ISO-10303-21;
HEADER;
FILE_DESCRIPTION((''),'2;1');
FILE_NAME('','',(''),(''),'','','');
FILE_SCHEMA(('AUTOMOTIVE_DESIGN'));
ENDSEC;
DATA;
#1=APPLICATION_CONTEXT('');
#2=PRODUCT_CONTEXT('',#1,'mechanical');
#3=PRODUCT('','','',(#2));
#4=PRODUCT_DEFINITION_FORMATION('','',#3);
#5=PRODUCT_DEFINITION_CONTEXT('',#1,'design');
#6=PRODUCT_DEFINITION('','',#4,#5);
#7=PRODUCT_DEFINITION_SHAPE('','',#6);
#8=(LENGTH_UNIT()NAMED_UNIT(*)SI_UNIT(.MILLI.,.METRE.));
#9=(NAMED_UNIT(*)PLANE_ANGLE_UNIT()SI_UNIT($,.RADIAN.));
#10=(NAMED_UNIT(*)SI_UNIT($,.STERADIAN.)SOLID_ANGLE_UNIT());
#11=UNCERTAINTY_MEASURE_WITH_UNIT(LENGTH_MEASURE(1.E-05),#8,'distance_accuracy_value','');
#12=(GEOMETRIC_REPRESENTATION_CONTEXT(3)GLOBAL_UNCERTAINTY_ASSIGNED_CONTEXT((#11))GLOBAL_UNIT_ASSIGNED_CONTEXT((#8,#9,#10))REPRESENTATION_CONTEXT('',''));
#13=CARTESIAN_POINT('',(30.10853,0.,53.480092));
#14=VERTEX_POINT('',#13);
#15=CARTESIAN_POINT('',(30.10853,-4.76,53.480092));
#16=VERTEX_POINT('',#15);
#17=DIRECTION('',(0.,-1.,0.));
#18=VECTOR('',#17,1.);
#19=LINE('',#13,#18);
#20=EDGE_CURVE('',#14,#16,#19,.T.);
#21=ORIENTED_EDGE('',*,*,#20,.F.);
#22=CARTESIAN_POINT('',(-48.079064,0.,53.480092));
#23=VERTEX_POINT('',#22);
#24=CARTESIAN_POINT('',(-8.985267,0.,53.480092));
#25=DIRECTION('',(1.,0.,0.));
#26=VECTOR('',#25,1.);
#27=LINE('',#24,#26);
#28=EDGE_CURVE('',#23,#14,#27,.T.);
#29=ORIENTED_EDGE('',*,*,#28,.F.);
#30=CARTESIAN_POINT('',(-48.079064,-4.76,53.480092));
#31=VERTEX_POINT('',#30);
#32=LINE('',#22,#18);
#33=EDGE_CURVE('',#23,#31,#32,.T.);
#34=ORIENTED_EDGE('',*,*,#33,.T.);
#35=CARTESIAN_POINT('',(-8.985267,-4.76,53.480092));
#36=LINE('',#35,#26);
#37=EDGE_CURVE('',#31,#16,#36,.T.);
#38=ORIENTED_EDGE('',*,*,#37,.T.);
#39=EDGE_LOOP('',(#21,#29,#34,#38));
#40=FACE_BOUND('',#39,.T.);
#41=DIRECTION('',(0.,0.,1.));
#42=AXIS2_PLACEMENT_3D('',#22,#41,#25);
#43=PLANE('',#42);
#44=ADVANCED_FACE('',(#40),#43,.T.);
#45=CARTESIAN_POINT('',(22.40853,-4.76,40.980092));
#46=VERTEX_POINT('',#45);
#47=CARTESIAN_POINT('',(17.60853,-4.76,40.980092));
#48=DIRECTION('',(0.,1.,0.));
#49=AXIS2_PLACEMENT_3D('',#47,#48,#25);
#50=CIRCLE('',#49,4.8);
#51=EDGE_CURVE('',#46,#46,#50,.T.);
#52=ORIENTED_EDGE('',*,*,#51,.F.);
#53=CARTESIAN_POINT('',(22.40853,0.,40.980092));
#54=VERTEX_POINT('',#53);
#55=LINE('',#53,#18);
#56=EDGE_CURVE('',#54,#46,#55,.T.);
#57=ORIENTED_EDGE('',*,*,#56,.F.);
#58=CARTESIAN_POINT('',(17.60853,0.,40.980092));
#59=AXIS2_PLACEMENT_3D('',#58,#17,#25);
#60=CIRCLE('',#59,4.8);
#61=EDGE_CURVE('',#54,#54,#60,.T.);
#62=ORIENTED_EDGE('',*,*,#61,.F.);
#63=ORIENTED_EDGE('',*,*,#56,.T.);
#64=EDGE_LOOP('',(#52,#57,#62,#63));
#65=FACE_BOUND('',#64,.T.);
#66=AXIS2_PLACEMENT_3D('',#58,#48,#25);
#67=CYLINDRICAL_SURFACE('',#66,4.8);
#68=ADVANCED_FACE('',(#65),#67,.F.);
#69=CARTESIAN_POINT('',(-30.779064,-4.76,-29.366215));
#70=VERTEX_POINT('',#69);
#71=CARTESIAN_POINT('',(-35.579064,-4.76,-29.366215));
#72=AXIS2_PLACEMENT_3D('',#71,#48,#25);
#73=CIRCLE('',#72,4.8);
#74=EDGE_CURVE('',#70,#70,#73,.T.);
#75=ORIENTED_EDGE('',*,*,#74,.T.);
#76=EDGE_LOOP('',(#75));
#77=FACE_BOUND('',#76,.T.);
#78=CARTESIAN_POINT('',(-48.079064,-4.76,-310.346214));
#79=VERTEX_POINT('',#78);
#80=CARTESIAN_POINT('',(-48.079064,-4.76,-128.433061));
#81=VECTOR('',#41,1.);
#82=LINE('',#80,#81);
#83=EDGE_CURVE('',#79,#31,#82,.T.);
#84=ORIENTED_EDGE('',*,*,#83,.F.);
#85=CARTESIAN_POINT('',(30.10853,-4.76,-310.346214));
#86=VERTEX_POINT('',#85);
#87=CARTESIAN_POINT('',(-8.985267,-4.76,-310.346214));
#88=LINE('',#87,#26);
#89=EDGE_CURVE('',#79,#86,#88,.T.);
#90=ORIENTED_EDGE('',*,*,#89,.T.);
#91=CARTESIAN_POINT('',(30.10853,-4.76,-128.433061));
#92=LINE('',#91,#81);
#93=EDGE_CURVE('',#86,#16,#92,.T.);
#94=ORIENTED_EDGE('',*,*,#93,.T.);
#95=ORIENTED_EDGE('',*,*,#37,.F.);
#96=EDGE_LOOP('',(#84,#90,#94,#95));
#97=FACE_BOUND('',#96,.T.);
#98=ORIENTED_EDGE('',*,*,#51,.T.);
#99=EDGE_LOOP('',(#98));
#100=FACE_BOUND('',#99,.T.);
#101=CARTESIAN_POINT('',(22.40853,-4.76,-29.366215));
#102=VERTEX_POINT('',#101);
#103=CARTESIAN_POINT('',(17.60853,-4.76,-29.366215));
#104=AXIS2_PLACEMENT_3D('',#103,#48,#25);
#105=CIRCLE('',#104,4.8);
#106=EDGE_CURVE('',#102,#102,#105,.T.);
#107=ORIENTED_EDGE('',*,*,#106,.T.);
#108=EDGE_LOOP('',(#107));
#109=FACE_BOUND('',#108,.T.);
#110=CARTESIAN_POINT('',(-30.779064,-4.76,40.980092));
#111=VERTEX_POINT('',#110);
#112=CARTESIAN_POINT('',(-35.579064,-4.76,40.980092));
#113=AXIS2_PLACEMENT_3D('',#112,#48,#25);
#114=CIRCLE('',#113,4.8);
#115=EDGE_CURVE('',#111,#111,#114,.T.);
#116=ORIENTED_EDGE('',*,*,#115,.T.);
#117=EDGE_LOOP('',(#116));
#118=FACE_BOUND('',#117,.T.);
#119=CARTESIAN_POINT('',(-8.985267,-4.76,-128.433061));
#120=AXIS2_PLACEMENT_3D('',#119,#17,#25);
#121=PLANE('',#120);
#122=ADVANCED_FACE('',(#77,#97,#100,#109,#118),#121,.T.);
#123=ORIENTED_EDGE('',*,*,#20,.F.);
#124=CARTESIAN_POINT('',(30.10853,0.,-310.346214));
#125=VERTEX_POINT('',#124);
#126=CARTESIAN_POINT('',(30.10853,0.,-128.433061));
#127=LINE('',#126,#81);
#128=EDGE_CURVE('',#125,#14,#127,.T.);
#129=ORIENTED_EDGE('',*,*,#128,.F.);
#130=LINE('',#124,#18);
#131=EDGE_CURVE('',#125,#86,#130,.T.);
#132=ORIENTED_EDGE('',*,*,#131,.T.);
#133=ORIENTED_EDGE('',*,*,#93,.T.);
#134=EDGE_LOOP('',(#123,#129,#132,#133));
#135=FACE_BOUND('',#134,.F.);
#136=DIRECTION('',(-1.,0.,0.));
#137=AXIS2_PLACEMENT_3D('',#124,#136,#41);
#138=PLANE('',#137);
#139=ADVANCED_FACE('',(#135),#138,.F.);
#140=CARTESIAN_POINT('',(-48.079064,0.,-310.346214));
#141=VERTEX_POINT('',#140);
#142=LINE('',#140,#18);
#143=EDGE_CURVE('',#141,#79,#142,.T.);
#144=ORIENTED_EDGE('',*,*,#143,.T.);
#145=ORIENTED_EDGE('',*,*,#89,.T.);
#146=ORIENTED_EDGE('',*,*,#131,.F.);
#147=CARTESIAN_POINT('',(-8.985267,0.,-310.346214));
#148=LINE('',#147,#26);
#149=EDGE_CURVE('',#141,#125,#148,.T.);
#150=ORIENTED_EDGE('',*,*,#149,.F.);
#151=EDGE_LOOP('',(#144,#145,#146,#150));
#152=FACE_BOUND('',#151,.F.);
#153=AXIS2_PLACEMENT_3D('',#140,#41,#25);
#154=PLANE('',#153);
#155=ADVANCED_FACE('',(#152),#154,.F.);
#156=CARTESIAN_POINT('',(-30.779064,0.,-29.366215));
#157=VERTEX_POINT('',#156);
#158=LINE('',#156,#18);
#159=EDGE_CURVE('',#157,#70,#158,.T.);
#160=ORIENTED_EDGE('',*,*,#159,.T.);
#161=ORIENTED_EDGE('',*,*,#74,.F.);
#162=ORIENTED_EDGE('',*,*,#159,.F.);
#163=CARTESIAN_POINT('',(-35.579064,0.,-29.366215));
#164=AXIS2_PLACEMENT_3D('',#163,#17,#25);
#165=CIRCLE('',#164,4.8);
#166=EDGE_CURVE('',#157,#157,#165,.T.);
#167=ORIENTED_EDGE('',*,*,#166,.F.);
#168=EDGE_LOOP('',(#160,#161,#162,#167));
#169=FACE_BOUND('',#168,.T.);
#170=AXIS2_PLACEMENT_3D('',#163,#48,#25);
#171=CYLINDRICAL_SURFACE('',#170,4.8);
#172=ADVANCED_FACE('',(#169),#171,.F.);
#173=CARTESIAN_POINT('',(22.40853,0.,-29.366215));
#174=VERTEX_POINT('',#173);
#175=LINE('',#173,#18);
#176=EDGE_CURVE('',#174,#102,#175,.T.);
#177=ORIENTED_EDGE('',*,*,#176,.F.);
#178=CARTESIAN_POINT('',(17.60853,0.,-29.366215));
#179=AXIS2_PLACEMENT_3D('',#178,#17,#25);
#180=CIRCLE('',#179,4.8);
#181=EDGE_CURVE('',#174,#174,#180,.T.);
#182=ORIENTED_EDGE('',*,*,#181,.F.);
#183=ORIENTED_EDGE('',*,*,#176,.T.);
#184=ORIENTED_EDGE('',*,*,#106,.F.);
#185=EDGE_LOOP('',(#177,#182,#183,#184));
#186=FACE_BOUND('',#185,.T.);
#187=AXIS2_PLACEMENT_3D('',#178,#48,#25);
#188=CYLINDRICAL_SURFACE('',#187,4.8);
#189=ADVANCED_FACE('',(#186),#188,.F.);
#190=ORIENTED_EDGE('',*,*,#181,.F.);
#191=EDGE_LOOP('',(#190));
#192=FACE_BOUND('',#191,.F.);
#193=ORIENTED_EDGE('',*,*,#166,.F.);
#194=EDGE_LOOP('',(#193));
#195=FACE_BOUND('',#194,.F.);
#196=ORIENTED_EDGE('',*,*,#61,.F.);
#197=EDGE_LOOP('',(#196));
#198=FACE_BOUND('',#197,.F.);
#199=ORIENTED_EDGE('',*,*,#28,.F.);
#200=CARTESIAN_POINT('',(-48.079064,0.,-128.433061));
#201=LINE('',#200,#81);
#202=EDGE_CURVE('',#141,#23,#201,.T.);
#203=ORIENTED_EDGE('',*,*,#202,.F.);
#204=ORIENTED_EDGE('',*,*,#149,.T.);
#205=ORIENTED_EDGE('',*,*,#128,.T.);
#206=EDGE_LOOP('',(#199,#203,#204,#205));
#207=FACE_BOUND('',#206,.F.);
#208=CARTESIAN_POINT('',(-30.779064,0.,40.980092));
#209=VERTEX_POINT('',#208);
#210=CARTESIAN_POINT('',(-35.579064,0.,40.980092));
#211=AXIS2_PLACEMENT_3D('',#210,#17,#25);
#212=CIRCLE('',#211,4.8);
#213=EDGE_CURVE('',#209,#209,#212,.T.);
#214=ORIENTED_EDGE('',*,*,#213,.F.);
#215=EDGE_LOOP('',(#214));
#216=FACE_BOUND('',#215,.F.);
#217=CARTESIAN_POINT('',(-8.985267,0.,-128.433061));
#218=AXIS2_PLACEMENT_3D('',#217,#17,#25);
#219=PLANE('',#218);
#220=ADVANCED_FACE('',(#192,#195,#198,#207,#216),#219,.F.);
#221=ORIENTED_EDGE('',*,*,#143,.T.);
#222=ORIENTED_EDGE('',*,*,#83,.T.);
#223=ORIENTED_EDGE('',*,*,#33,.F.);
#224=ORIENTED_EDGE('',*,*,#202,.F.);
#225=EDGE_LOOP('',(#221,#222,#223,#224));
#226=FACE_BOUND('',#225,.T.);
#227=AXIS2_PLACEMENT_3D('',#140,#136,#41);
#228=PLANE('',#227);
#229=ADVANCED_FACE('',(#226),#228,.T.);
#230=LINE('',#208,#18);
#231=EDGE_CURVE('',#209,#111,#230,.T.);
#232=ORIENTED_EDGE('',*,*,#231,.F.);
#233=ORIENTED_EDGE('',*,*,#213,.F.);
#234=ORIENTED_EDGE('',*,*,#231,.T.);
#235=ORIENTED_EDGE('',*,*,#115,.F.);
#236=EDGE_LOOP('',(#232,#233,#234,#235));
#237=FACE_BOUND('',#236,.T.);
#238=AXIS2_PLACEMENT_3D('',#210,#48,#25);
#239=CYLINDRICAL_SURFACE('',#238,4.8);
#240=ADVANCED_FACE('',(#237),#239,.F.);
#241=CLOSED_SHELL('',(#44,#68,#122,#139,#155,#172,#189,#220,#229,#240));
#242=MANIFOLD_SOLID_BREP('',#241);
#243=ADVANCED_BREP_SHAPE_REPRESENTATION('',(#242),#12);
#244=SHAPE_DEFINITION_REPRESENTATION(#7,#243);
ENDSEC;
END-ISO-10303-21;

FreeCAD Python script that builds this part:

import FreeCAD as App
import Part
import Sketcher
from FreeCAD import Vector
Q = App.Units.Quantity


def add_polygon(sketch, points):
    """Adds a closed chain of lines whose ends are joined by coincident constraints."""
    first, n = sketch.GeometryCount, len(points)
    for a, b in zip(points, points[1:] + points[:1]):
        sketch.addGeometry(Part.LineSegment(App.Vector(*a, 0), App.Vector(*b, 0)), False)
    for i in range(n):
        sketch.addConstraint(Sketcher.Constraint("Coincident", first + i, 2, first + (i + 1) % n, 1))

doc = App.newDocument("Part")
params = doc.addObject("Spreadsheet::Sheet", "Params")
for row, (alias, value) in enumerate([
    ("pad1_length", "4.76 mm"),
    ("sketch2_diameter", "9.6 mm"),
], start=1):
    params.set(f"A{row}", alias)
    params.set(f"B{row}", "=" + value)
    params.setAlias(f"B{row}", alias)

body = doc.addObject("PartDesign::Body", "Body")

# Sketch on XZ plane
sketch1 = body.newObject("Sketcher::SketchObject", "Sketch")
sketch1.AttachmentSupport = (doc.getObject("XZ_Plane"), [""])
sketch1.MapMode = "FlatFace"
add_polygon(sketch1, [(-48, 53), (-48, -310), (30, -310), (30, 53)])  # lines 0-3
sketch1.addConstraint(Sketcher.Constraint("Vertical", 0))
sketch1.addConstraint(Sketcher.Constraint("Horizontal", 1))
sketch1.addConstraint(Sketcher.Constraint("Vertical", 2))
sketch1.addConstraint(Sketcher.Constraint("Horizontal", 3))
sketch1.addConstraint(Sketcher.Constraint("DistanceX", 1, 1, 1, 2, Q("78.187594 mm")))
sketch1.addConstraint(Sketcher.Constraint("DistanceY", 0, 2, 0, 1, Q("363.826307 mm")))
sketch1.addConstraint(Sketcher.Constraint("DistanceX", -1, 1, 1, 2, Q("30.10853 mm")))
sketch1.addConstraint(Sketcher.Constraint("DistanceY", 0, 2, -1, 1, Q("310.346214 mm")))
pad1 = body.newObject("PartDesign::Pad", "Pad")
pad1.Profile = sketch1
pad1.setExpression("Length", "Params.pad1_length")

# Sketch on XZ plane
sketch2 = body.newObject("Sketcher::SketchObject", "Sketch001")
sketch2.AttachmentSupport = (doc.getObject("XZ_Plane"), [""])
sketch2.MapMode = "FlatFace"
sketch2.addGeometry(Part.Circle(Vector(-35.6, 41, 0), Vector(0, 0, 1), 4.8), False)
sketch2.addGeometry(Part.Circle(Vector(17.6, 41, 0), Vector(0, 0, 1), 4.8), False)
sketch2.addGeometry(Part.Circle(Vector(17.6, -29.4, 0), Vector(0, 0, 1), 4.8), False)
sketch2.addGeometry(Part.Circle(Vector(-35.6, -29.4, 0), Vector(0, 0, 1), 4.8), False)
sketch2.addConstraint(Sketcher.Constraint("Equal", 0, 1))
sketch2.addConstraint(Sketcher.Constraint("Equal", 1, 2))
sketch2.addConstraint(Sketcher.Constraint("Equal", 2, 3))
sketch2.addConstraint(Sketcher.Constraint("Horizontal", 0, 3, 1, 3))
sketch2.addConstraint(Sketcher.Constraint("Horizontal", 2, 3, 3, 3))
sketch2.addConstraint(Sketcher.Constraint("Vertical", 1, 3, 2, 3))
sketch2.addConstraint(Sketcher.Constraint("Vertical", 0, 3, 3, 3))
sketch2.addConstraint(Sketcher.Constraint("Diameter", 0, Q("9.6 mm")))
sketch2.addConstraint(Sketcher.Constraint("DistanceX", -1, 1, 1, 3, Q("17.60853 mm")))
sketch2.addConstraint(Sketcher.Constraint("DistanceX", 0, 3, -1, 1, Q("35.579064 mm")))
sketch2.addConstraint(Sketcher.Constraint("DistanceY", -1, 1, 0, 3, Q("40.980092 mm")))
sketch2.addConstraint(Sketcher.Constraint("DistanceY", 2, 3, -1, 1, Q("29.366215 mm")))
sketch2.setExpression("Constraints[7]", "Params.sketch2_diameter")
pocket1 = body.newObject("PartDesign::Pocket", "Pocket")
pocket1.Profile = sketch2
pocket1.Type = "ThroughAll"
pocket1.Reversed = True

doc.recompute()
